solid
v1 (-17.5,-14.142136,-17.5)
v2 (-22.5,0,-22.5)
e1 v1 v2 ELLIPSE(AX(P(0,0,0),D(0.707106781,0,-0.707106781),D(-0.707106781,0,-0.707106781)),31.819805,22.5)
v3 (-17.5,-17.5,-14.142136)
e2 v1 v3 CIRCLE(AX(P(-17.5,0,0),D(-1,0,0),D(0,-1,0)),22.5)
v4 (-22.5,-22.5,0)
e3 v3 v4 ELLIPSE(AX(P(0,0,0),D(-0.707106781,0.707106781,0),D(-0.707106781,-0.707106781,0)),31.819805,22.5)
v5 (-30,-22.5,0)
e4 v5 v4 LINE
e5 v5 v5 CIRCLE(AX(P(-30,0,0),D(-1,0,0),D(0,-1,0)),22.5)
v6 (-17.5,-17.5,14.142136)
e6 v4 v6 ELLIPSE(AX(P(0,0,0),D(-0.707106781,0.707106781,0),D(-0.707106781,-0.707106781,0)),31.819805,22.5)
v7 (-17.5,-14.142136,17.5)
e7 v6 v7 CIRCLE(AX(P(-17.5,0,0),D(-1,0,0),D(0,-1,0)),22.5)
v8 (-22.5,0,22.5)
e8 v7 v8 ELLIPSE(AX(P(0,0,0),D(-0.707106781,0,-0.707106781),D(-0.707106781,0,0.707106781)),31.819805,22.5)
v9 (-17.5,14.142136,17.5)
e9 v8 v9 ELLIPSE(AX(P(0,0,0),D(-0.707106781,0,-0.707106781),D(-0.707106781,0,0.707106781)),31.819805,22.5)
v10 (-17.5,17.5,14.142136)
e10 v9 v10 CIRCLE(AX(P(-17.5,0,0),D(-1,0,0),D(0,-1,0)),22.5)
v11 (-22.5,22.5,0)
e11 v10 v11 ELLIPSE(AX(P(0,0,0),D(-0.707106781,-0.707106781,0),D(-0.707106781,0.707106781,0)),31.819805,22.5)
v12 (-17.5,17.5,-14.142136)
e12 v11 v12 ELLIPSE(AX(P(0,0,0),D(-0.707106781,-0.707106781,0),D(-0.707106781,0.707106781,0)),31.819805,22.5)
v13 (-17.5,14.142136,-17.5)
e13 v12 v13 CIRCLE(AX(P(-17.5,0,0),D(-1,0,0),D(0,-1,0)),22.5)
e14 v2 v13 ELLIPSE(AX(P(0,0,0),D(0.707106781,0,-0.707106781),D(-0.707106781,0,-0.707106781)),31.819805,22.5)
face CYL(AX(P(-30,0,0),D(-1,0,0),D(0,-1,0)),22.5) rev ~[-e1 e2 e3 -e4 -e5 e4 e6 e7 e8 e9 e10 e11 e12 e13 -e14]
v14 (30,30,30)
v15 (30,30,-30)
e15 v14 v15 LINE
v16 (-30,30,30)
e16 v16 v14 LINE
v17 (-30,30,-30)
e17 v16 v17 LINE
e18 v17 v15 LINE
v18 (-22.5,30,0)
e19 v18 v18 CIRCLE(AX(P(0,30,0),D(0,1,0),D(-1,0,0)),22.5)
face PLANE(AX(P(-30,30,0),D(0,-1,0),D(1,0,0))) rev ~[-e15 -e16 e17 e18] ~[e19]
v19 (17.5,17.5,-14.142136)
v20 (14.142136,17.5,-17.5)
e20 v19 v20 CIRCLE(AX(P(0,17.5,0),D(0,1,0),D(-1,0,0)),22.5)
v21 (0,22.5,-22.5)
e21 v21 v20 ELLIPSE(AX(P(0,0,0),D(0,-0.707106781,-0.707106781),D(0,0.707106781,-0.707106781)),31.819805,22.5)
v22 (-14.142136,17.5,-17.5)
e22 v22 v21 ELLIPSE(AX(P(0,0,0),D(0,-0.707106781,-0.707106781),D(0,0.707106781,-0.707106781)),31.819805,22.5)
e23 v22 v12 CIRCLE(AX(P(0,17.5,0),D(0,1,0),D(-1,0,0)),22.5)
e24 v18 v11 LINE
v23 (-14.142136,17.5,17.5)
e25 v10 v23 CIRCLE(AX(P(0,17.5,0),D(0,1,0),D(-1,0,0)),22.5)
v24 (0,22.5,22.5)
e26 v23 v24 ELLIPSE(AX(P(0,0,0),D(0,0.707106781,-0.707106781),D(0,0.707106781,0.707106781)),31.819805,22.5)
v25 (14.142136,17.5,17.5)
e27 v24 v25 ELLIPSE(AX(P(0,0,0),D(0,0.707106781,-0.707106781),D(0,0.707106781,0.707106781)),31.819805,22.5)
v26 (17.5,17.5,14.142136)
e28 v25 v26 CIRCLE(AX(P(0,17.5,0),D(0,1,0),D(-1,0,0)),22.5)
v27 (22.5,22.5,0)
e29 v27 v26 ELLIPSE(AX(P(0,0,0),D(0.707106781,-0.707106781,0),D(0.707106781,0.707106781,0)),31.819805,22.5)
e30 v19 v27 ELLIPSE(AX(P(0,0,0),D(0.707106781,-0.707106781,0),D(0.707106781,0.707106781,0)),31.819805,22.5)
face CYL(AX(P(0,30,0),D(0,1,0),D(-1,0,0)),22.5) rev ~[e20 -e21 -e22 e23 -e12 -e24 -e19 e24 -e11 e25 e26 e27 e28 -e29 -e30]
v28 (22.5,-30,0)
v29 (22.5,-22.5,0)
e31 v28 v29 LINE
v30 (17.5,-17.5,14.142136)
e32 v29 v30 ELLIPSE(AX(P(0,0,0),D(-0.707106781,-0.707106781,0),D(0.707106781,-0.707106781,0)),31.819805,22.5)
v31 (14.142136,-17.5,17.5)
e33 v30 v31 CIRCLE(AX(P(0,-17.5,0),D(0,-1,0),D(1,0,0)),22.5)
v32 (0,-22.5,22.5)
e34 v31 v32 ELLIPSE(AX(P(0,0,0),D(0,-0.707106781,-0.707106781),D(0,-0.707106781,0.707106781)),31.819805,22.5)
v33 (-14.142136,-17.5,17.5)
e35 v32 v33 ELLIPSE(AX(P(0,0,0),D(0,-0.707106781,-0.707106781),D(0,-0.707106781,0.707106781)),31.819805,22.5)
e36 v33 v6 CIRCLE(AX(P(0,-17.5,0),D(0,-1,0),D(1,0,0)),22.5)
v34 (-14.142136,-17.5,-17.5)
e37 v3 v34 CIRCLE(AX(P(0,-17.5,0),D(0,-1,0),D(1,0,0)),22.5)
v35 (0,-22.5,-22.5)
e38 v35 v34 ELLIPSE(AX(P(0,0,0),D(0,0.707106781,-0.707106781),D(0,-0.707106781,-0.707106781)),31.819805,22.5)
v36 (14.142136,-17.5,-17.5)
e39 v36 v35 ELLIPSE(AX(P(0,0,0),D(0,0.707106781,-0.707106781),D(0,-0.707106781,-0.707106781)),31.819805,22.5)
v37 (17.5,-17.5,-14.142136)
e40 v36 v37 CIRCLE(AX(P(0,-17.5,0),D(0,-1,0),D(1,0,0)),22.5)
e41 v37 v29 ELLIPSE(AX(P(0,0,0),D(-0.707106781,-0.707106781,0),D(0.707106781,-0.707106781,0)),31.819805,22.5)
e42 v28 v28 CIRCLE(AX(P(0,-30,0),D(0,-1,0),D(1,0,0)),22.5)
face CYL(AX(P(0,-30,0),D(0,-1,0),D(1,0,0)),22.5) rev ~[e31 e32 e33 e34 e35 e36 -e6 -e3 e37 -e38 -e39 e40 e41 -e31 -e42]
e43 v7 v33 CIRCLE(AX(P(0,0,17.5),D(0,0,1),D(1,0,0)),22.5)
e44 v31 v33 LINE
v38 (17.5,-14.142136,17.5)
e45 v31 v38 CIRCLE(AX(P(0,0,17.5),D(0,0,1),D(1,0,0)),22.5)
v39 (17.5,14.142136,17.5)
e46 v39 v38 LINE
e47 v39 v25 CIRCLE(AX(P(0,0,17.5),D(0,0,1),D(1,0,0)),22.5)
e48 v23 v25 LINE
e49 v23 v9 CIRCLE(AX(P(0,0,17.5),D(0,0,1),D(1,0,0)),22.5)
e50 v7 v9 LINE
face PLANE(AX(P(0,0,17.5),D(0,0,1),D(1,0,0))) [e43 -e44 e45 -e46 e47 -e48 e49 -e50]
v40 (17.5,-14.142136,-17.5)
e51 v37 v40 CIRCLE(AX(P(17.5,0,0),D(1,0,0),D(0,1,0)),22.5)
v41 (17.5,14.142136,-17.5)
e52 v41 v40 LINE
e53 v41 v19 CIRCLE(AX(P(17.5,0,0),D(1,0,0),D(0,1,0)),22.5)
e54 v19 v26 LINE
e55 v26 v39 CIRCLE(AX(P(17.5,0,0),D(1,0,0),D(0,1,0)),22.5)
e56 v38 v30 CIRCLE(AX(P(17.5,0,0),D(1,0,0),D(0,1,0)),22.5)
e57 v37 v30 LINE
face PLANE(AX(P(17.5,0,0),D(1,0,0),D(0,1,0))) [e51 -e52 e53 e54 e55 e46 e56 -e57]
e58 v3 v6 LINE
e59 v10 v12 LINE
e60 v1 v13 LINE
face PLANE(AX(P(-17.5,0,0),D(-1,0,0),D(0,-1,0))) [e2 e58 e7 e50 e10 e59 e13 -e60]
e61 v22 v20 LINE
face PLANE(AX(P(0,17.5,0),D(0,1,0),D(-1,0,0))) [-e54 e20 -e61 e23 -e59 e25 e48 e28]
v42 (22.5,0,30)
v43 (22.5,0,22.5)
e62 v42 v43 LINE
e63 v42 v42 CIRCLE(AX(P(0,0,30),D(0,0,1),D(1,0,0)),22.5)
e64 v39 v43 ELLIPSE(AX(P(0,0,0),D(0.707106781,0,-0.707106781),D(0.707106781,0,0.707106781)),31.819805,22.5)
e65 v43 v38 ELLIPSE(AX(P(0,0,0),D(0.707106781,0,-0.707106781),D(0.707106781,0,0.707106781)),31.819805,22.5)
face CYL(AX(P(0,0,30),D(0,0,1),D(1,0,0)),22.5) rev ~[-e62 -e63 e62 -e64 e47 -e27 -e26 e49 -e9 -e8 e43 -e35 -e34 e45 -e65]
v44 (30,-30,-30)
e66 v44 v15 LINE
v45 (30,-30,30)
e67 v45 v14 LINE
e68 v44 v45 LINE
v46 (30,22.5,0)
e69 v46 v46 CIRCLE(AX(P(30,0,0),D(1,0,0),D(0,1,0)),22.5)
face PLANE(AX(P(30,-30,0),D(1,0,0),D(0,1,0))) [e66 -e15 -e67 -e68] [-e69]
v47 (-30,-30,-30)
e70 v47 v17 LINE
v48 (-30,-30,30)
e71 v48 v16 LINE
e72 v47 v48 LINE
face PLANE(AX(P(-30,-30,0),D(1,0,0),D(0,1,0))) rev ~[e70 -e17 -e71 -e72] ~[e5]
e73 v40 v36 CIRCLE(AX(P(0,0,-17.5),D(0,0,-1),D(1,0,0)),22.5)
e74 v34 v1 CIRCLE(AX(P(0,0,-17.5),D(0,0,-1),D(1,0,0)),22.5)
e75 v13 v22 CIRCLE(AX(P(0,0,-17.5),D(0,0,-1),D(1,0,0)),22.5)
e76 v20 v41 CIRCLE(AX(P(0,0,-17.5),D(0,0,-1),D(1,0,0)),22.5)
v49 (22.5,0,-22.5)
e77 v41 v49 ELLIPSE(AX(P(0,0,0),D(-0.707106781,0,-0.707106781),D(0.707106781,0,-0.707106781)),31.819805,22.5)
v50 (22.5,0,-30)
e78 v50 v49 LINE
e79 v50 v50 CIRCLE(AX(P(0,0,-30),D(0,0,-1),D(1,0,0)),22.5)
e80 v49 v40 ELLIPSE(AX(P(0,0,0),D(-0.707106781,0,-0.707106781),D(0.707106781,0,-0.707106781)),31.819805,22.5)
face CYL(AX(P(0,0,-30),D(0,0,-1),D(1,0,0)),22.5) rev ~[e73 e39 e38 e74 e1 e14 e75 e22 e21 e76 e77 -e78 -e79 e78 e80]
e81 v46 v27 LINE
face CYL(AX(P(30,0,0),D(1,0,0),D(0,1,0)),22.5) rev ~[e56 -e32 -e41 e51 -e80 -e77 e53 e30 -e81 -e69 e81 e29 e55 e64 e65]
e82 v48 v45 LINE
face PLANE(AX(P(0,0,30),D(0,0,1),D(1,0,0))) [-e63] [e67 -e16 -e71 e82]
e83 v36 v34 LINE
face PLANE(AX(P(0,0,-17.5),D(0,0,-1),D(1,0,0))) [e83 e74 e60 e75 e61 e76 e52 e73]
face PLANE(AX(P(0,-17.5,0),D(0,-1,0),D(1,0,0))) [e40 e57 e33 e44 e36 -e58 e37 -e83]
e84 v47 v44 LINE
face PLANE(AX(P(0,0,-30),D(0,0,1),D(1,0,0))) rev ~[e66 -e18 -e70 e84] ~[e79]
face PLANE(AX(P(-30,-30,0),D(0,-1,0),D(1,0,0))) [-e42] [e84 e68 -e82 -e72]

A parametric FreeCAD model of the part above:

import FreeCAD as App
import Part
import Sketcher

V = App.Vector

doc = App.newDocument("Part")
body = doc.addObject("PartDesign::Body", "Body")

sketch1 = doc.addObject("Sketcher::SketchObject", "Sketch")
body.addObject(sketch1)
sketch1.AttachmentSupport = (doc.XY_Plane, [""])
sketch1.MapMode = "FlatFace"
sketch1.addGeometry([
    Part.LineSegment(V(-30, 30, 0), V(-30, -30, 0)),
    Part.LineSegment(V(-30, -30, 0), V(30, -30, 0)),
    Part.LineSegment(V(30, -30, 0), V(30, 30, 0)),
    Part.LineSegment(V(30, 30, 0), V(-30, 30, 0)),
], False)
sketch1.addConstraint([
    Sketcher.Constraint("Coincident", 0, 2, 1, 1),
    Sketcher.Constraint("Coincident", 1, 2, 2, 1),
    Sketcher.Constraint("Coincident", 2, 2, 3, 1),
    Sketcher.Constraint("Coincident", 3, 2, 0, 1),
    Sketcher.Constraint("Vertical", 0),
    Sketcher.Constraint("Horizontal", 1),
    Sketcher.Constraint("Vertical", 2),
    Sketcher.Constraint("Horizontal", 3),
    Sketcher.Constraint("Symmetric", 0, 2, 2, 2, -1, 1),
    Sketcher.Constraint("Equal", 3, 0),
    Sketcher.Constraint("DistanceX", 1, 1, 1, 2, 60.0),
])
pad1 = doc.addObject("PartDesign::Pad", "Pad")
body.addObject(pad1)
pad1.Profile = sketch1
pad1.Type = "TwoLengths"
pad1.Length = 30
pad1.Length2 = 30

sketch2 = doc.addObject("Sketcher::SketchObject", "Sketch001")
body.addObject(sketch2)
sketch2.AttachmentSupport = (doc.XY_Plane, [""])
sketch2.MapMode = "FlatFace"
sketch2.AttachmentOffset = App.Placement(V(0, 0, -30), App.Rotation())
sketch2.addGeometry(Part.Circle(V(0, 0, 0), V(0, 0, 1), 22), False)
sketch2.addConstraint([
    Sketcher.Constraint("Coincident", 0, 3, -1, 1),
    Sketcher.Constraint("Diameter", 0, 45.0),
])
pocket1 = doc.addObject("PartDesign::Pocket", "Pocket")
body.addObject(pocket1)
pocket1.Profile = sketch2
pocket1.Length = 12.5
pocket1.Reversed = True

sketch3 = doc.addObject("Sketcher::SketchObject", "Sketch002")
body.addObject(sketch3)
sketch3.AttachmentSupport = (doc.YZ_Plane, [""])
sketch3.MapMode = "FlatFace"
sketch3.AttachmentOffset = App.Placement(V(0, 0, -30), App.Rotation())
sketch3.addGeometry(Part.Circle(V(0, 0, 0), V(0, 0, 1), 22), False)
sketch3.addConstraint([
    Sketcher.Constraint("Coincident", 0, 3, -1, 1),
    Sketcher.Constraint("Diameter", 0, 45.0),
])
pocket2 = doc.addObject("PartDesign::Pocket", "Pocket001")
body.addObject(pocket2)
pocket2.Profile = sketch3
pocket2.Length = 12.5
pocket2.Reversed = True

sketch4 = doc.addObject("Sketcher::SketchObject", "Sketch003")
body.addObject(sketch4)
sketch4.AttachmentSupport = (doc.XZ_Plane, [""])
sketch4.MapMode = "FlatFace"
sketch4.AttachmentOffset = App.Placement(V(0, 0, 30), App.Rotation())
sketch4.addGeometry(Part.Circle(V(0, 0, 0), V(0, 0, 1), 22), False)
sketch4.addConstraint([
    Sketcher.Constraint("Coincident", 0, 3, -1, 1),
    Sketcher.Constraint("Diameter", 0, 45.0),
])
pocket3 = doc.addObject("PartDesign::Pocket", "Pocket002")
body.addObject(pocket3)
pocket3.Profile = sketch4
pocket3.Length = 12.5

sketch5 = doc.addObject("Sketcher::SketchObject", "Sketch004")
body.addObject(sketch5)
sketch5.AttachmentSupport = (doc.YZ_Plane, [""])
sketch5.MapMode = "FlatFace"
sketch5.AttachmentOffset = App.Placement(V(0, 0, 30), App.Rotation())
sketch5.addGeometry(Part.Circle(V(0, 0, 0), V(0, 0, 1), 22), False)
sketch5.addConstraint([
    Sketcher.Constraint("Coincident", 0, 3, -1, 1),
    Sketcher.Constraint("Diameter", 0, 45.0),
])
pocket4 = doc.addObject("PartDesign::Pocket", "Pocket003")
body.addObject(pocket4)
pocket4.Profile = sketch5
pocket4.Length = 12.5

sketch6 = doc.addObject("Sketcher::SketchObject", "Sketch005")
body.addObject(sketch6)
sketch6.AttachmentSupport = (doc.XZ_Plane, [""])
sketch6.MapMode = "FlatFace"
sketch6.AttachmentOffset = App.Placement(V(0, 0, -30), App.Rotation())
sketch6.addGeometry(Part.Circle(V(0, 0, 0), V(0, 0, 1), 22), False)
sketch6.addConstraint([
    Sketcher.Constraint("Coincident", 0, 3, -1, 1),
    Sketcher.Constraint("Diameter", 0, 45.0),
])
pocket5 = doc.addObject("PartDesign::Pocket", "Pocket004")
body.addObject(pocket5)
pocket5.Profile = sketch6
pocket5.Length = 12.5
pocket5.Reversed = True

sketch7 = doc.addObject("Sketcher::SketchObject", "Sketch006")
body.addObject(sketch7)
sketch7.AttachmentSupport = (doc.XY_Plane, [""])
sketch7.MapMode = "FlatFace"
sketch7.AttachmentOffset = App.Placement(V(0, 0, 30), App.Rotation())
sketch7.addGeometry(Part.Circle(V(0, 0, 0), V(0, 0, 1), 22), False)
sketch7.addConstraint([
    Sketcher.Constraint("Coincident", 0, 3, -1, 1),
    Sketcher.Constraint("Diameter", 0, 45.0),
])
pocket6 = doc.addObject("PartDesign::Pocket", "Pocket005")
body.addObject(pocket6)
pocket6.Profile = sketch7
pocket6.Length = 12.5

doc.recompute()
